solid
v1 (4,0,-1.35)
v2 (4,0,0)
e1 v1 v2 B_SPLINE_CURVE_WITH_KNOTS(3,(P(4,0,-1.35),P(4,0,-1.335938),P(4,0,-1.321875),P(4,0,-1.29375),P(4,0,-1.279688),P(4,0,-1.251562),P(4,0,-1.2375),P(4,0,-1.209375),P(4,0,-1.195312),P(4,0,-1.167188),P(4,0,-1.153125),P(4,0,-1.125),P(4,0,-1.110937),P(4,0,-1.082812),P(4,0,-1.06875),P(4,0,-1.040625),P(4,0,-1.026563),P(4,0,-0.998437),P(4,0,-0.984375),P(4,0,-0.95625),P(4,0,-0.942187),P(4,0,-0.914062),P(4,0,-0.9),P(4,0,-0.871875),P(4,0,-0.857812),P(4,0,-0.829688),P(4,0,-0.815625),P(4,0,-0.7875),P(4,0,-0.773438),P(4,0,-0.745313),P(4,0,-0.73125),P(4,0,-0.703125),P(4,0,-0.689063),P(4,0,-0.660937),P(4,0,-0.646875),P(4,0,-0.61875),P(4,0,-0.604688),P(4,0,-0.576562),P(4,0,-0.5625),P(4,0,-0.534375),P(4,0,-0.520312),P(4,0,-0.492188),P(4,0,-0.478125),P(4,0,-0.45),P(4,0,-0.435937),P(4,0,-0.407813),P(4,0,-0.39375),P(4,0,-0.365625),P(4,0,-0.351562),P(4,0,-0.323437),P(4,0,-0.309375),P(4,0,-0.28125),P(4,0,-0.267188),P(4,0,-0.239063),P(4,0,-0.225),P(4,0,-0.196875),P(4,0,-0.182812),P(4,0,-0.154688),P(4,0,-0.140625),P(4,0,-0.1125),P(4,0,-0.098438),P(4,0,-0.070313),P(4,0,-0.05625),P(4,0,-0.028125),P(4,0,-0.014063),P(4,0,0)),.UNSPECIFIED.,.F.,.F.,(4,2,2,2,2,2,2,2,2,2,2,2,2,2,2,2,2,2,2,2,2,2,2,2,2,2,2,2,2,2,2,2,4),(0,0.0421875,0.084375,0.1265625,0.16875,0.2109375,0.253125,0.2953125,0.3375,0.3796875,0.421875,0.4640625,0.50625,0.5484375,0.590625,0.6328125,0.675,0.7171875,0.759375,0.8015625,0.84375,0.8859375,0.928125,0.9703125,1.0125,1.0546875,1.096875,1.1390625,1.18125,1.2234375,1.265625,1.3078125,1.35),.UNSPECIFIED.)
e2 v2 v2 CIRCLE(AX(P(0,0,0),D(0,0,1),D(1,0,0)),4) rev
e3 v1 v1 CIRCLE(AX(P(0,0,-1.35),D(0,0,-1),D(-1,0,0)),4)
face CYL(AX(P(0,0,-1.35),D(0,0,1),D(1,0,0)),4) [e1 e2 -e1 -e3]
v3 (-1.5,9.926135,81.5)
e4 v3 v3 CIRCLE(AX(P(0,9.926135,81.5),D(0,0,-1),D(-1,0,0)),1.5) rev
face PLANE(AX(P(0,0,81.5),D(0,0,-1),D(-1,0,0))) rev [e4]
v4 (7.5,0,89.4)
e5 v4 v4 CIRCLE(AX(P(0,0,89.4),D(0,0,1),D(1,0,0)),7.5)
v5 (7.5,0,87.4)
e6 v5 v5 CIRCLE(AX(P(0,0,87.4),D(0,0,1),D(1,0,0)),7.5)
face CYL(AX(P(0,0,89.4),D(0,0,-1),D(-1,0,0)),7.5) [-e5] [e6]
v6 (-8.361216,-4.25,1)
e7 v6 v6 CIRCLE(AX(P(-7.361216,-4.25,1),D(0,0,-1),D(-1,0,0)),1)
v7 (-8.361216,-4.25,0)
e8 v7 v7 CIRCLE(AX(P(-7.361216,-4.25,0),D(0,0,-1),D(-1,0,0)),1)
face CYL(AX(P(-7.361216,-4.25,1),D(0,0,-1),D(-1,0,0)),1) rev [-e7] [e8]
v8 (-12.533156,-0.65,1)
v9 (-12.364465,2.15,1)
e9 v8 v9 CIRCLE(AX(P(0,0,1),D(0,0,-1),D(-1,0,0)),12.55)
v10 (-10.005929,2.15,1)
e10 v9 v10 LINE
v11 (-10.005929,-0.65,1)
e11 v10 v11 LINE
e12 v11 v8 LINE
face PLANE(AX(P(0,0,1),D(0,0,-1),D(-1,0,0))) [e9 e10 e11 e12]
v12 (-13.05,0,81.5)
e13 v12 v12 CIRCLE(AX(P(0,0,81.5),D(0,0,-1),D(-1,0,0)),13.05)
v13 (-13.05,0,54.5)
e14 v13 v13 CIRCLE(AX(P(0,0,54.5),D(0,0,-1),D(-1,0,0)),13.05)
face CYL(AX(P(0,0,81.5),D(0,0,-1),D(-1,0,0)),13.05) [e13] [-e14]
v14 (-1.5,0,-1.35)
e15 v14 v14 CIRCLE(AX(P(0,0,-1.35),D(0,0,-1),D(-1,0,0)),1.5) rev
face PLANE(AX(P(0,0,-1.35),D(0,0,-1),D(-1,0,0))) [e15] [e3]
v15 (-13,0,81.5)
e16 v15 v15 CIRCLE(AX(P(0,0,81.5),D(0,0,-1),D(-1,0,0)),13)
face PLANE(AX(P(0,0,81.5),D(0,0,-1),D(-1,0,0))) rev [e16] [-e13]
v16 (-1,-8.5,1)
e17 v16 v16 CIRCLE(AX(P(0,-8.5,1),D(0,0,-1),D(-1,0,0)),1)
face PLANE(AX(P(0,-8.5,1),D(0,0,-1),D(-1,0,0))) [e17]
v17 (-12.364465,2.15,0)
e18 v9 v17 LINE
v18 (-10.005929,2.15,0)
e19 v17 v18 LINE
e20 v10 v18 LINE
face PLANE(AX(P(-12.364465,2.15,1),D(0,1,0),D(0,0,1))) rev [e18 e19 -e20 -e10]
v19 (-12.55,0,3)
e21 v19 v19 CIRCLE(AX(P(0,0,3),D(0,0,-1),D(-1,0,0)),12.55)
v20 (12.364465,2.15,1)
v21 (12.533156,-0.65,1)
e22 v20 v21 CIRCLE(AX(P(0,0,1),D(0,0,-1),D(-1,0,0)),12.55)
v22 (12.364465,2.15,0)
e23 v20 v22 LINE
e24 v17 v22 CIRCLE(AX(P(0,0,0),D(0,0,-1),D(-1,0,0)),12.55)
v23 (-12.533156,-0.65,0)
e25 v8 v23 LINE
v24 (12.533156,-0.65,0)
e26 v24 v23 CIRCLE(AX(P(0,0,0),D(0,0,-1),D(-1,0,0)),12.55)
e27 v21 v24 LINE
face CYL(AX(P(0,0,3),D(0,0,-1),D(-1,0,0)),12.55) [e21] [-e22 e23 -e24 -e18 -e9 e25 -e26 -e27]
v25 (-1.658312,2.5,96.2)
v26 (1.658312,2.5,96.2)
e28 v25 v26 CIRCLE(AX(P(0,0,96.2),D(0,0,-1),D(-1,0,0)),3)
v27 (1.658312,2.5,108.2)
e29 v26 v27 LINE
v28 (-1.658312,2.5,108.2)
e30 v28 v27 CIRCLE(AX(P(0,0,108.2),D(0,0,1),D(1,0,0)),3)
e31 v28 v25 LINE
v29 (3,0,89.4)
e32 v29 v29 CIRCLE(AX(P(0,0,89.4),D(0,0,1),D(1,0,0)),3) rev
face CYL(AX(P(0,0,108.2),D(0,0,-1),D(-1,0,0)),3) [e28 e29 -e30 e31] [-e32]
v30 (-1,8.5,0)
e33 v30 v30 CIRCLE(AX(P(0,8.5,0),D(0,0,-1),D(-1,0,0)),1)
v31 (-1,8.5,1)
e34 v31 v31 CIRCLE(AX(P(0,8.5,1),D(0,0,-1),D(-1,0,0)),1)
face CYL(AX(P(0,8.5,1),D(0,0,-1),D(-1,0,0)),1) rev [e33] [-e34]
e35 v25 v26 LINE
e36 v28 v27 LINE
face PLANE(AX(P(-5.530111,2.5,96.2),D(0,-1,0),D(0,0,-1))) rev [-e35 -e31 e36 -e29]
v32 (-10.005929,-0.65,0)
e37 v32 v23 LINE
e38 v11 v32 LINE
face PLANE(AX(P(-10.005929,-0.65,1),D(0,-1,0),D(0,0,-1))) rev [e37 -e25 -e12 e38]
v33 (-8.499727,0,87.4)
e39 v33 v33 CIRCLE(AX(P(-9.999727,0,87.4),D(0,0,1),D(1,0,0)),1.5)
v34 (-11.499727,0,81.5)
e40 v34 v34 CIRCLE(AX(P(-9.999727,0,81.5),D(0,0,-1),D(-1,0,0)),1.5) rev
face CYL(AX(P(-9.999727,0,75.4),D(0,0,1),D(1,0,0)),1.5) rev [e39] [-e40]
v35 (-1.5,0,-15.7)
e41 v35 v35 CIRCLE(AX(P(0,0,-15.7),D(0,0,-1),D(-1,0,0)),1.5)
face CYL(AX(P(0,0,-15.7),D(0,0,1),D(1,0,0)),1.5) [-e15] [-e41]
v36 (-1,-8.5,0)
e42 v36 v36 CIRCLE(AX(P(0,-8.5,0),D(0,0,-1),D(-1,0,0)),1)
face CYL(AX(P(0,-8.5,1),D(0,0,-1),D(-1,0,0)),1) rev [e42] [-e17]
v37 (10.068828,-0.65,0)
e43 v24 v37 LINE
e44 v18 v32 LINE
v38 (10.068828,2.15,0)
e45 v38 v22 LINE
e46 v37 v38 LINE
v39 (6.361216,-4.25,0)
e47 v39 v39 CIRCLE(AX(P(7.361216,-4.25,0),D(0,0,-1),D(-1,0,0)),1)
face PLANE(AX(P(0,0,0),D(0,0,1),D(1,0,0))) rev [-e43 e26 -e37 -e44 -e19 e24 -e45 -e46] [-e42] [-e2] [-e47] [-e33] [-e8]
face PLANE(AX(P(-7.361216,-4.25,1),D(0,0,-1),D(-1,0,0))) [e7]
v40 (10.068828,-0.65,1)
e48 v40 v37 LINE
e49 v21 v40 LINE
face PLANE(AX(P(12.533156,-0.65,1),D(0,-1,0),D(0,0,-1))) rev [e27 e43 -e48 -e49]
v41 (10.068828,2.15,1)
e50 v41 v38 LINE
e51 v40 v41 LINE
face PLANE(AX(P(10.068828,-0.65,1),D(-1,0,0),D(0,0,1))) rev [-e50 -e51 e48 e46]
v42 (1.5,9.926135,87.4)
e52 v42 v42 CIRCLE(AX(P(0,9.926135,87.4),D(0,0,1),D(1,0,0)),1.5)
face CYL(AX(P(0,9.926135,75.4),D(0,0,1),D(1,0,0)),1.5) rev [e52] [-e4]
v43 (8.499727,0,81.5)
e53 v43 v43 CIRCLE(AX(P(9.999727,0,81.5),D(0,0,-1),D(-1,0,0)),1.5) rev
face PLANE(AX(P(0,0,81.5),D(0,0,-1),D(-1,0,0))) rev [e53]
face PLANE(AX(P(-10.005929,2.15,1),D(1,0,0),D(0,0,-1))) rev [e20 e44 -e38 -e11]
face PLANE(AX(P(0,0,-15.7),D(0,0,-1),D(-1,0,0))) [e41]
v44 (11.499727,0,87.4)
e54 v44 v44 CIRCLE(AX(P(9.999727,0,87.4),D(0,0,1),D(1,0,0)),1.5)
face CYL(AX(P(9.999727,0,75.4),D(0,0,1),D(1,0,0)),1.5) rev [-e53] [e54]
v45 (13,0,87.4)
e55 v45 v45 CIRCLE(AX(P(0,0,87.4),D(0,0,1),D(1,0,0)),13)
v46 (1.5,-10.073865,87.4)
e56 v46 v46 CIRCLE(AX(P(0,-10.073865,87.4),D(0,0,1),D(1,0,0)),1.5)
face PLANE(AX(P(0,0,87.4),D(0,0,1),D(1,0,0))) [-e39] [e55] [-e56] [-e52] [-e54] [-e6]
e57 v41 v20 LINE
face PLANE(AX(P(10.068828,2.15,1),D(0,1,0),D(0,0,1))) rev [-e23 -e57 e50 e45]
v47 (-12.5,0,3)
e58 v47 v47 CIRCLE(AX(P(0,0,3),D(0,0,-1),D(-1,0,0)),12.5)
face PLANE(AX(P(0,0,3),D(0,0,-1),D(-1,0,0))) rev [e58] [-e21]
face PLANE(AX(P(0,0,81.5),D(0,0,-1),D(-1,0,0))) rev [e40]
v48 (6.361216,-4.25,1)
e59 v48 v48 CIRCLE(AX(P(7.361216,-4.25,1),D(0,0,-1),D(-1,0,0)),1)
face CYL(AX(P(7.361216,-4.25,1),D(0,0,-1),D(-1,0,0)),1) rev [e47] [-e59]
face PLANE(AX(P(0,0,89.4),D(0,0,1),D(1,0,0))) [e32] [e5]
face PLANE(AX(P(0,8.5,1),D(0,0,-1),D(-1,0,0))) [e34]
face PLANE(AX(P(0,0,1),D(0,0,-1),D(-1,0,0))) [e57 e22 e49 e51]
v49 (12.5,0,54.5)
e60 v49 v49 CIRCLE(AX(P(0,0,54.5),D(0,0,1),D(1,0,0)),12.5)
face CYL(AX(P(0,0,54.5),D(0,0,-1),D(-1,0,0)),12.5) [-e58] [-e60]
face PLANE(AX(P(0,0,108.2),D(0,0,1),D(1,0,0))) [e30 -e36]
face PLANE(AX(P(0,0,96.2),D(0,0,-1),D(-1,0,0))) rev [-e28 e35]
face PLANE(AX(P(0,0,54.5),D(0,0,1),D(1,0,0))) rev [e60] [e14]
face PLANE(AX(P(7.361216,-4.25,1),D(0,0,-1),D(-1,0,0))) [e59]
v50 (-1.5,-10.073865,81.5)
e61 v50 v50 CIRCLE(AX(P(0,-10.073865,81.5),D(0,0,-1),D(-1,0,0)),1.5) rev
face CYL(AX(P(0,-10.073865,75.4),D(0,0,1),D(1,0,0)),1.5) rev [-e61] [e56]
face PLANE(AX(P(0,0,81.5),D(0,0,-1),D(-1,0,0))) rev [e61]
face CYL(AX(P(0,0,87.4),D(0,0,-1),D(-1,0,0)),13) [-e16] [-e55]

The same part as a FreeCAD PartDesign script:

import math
import FreeCAD as App
import Part
import Sketcher
Q = App.Units.Quantity

doc = App.newDocument("Part")
params = doc.addObject("Spreadsheet::Sheet", "Params")
for row, (alias, value) in enumerate([
    ("sketch1_diameter", "25 mm"),
    ("pad1_length", "54.5 mm"),
    ("sketch2_diameter", "8 mm"),
    ("pad2_length", "1.35 mm"),
    ("sketch3_diameter", "3 mm"),
    ("pad3_length", "15.7 mm"),
    ("sketch4_diameter", "26 mm"),
    ("pad4_length", "32.9 mm"),
    ("sketch5_diameter", "15 mm"),
    ("pad5_length", "2 mm"),
    ("sketch6_diameter", "6 mm"),
    ("pad6_length", "20.8 mm"),
    ("pocket1_length", "12 mm"),
    ("sketch8_diameter", "3 mm"),
    ("pocket2_length", "12 mm"),
    ("sketch9_diameter", "26.1 mm"),
    ("pad7_length", "27 mm"),
    ("sketch10_diameter", "25.1 mm"),
    ("pad8_length", "3 mm"),
    ("sketch11_diameter", "2 mm"),
    ("sketch11_radius", "12.55 mm"),
    ("sketch11_height", "2.8 mm"),
    ("pocket3_length", "1 mm"),
], start=1):
    params.set(f"A{row}", alias)
    params.set(f"B{row}", "=" + value)
    params.setAlias(f"B{row}", alias)

body = doc.addObject("PartDesign::Body", "Body")

# Sketch on XY plane
sketch1 = body.newObject("Sketcher::SketchObject", "Sketch")
sketch1.AttachmentSupport = (doc.getObject("XY_Plane"), [""])
sketch1.MapMode = "FlatFace"
sketch1.addGeometry(Part.Circle(App.Vector(0, 0, 0), App.Vector(0, 0, 1), 12), False)
sketch1.addConstraint([
    Sketcher.Constraint("Coincident", 0, 3, -1, 1),
    Sketcher.Constraint("Diameter", 0, Q("25 mm")),
])
sketch1.setExpression("Constraints[1]", "Params.sketch1_diameter")
pad1 = body.newObject("PartDesign::Pad", "Pad")
pad1.Profile = sketch1
pad1.setExpression("Length", "Params.pad1_length")

# Sketch on XY plane
sketch2 = body.newObject("Sketcher::SketchObject", "Sketch001")
sketch2.AttachmentSupport = (doc.getObject("XY_Plane"), [""])
sketch2.MapMode = "FlatFace"
sketch2.addGeometry(Part.Circle(App.Vector(0, 0, 0), App.Vector(0, 0, 1), 4), False)
sketch2.addConstraint([
    Sketcher.Constraint("Coincident", 0, 3, -1, 1),
    Sketcher.Constraint("Diameter", 0, Q("8 mm")),
])
sketch2.setExpression("Constraints[1]", "Params.sketch2_diameter")
pad2 = body.newObject("PartDesign::Pad", "Pad001")
pad2.Profile = sketch2
pad2.setExpression("Length", "Params.pad2_length")
pad2.Reversed = True

# Sketch on XY plane
sketch3 = body.newObject("Sketcher::SketchObject", "Sketch002")
sketch3.AttachmentSupport = (doc.getObject("XY_Plane"), [""])
sketch3.MapMode = "FlatFace"
sketch3.addGeometry(Part.Circle(App.Vector(0, 0, 0), App.Vector(0, 0, 1), 1.5), False)
sketch3.addConstraint([
    Sketcher.Constraint("Coincident", 0, 3, -1, 1),
    Sketcher.Constraint("Diameter", 0, Q("3 mm")),
])
sketch3.setExpression("Constraints[1]", "Params.sketch3_diameter")
pad3 = body.newObject("PartDesign::Pad", "Pad002")
pad3.Profile = sketch3
pad3.setExpression("Length", "Params.pad3_length")
pad3.Reversed = True

# Sketch on XY plane
sketch4 = body.newObject("Sketcher::SketchObject", "Sketch003")
sketch4.AttachmentSupport = (doc.getObject("XY_Plane"), [""])
sketch4.MapMode = "FlatFace"
sketch4.AttachmentOffset = App.Placement(App.Vector(0, 0, 54.5), App.Rotation())
sketch4.addGeometry(Part.Circle(App.Vector(0, 0, 0), App.Vector(0, 0, 1), 13), False)
sketch4.addConstraint([
    Sketcher.Constraint("Coincident", 0, 3, -1, 1),
    Sketcher.Constraint("Diameter", 0, Q("26 mm")),
])
sketch4.setExpression("Constraints[1]", "Params.sketch4_diameter")
pad4 = body.newObject("PartDesign::Pad", "Pad003")
pad4.Profile = sketch4
pad4.setExpression("Length", "Params.pad4_length")

# Sketch on XY plane
sketch5 = body.newObject("Sketcher::SketchObject", "Sketch004")
sketch5.AttachmentSupport = (doc.getObject("XY_Plane"), [""])
sketch5.MapMode = "FlatFace"
sketch5.AttachmentOffset = App.Placement(App.Vector(0, 0, 87.4), App.Rotation())
sketch5.addGeometry(Part.Circle(App.Vector(0, 0, 0), App.Vector(0, 0, 1), 8), False)
sketch5.addConstraint([
    Sketcher.Constraint("Coincident", 0, 3, -1, 1),
    Sketcher.Constraint("Diameter", 0, Q("15 mm")),
])
sketch5.setExpression("Constraints[1]", "Params.sketch5_diameter")
pad5 = body.newObject("PartDesign::Pad", "Pad004")
pad5.Profile = sketch5
pad5.setExpression("Length", "Params.pad5_length")

# Sketch on XY plane
sketch6 = body.newObject("Sketcher::SketchObject", "Sketch005")
sketch6.AttachmentSupport = (doc.getObject("XY_Plane"), [""])
sketch6.MapMode = "FlatFace"
sketch6.AttachmentOffset = App.Placement(App.Vector(0, 0, 87.4), App.Rotation())
sketch6.addGeometry(Part.Circle(App.Vector(0, 0, 0), App.Vector(0, 0, 1), 3), False)
sketch6.addConstraint([
    Sketcher.Constraint("Coincident", 0, 3, -1, 1),
    Sketcher.Constraint("Diameter", 0, Q("6 mm")),
])
sketch6.setExpression("Constraints[1]", "Params.sketch6_diameter")
pad6 = body.newObject("PartDesign::Pad", "Pad005")
pad6.Profile = sketch6
pad6.setExpression("Length", "Params.pad6_length")

# Sketch on XY plane
sketch7 = body.newObject("Sketcher::SketchObject", "Sketch006")
sketch7.AttachmentSupport = (doc.getObject("XY_Plane"), [""])
sketch7.MapMode = "FlatFace"
sketch7.AttachmentOffset = App.Placement(App.Vector(0, 0, 108.2), App.Rotation())
sketch7.addGeometry([
    Part.LineSegment(App.Vector(-6, 15, 0), App.Vector(-6, 2, 0)),
    Part.LineSegment(App.Vector(-6, 2, 0), App.Vector(4, 2, 0)),
    Part.LineSegment(App.Vector(4, 2, 0), App.Vector(4, 15, 0)),
    Part.LineSegment(App.Vector(4, 15, 0), App.Vector(-6, 15, 0)),
], False)
sketch7.addConstraint([
    Sketcher.Constraint("Coincident", 0, 2, 1, 1),
    Sketcher.Constraint("Coincident", 1, 2, 2, 1),
    Sketcher.Constraint("Coincident", 2, 2, 3, 1),
    Sketcher.Constraint("Coincident", 3, 2, 0, 1),
    Sketcher.Constraint("Vertical", 0),
    Sketcher.Constraint("Horizontal", 1),
    Sketcher.Constraint("Vertical", 2),
    Sketcher.Constraint("Horizontal", 3),
    Sketcher.Constraint("DistanceY", -1, 1, 0, 2, Q("2.5 mm")),
    Sketcher.Constraint("DistanceX", 1, 1, 1, 2, Q("9.608231 mm")),
    Sketcher.Constraint("DistanceY", 0, 2, 0, 1, Q("12.440368 mm")),
    Sketcher.Constraint("DistanceX", 0, 2, -1, 1, Q("5.530111 mm")),
])
pocket1 = body.newObject("PartDesign::Pocket", "Pocket")
pocket1.Profile = sketch7
pocket1.setExpression("Length", "Params.pocket1_length")

# Sketch on XY plane
sketch8 = body.newObject("Sketcher::SketchObject", "Sketch007")
sketch8.AttachmentSupport = (doc.getObject("XY_Plane"), [""])
sketch8.MapMode = "FlatFace"
sketch8.AttachmentOffset = App.Placement(App.Vector(0, 0, 87.4), App.Rotation())
sketch8.addGeometry([
    Part.Circle(App.Vector(-10, 0, 0), App.Vector(0, 0, 1), 1.5),
    Part.Circle(App.Vector(10, 0, 0), App.Vector(0, 0, 1), 1.5),
    Part.Circle(App.Vector(0, -10.1, 0), App.Vector(0, 0, 1), 1.5),
    Part.Circle(App.Vector(0, 9.9, 0), App.Vector(0, 0, 1), 1.5),
], False)
sketch8.addConstraint([
    Sketcher.Constraint("Equal", 0, 1),
    Sketcher.Constraint("Equal", 1, 2),
    Sketcher.Constraint("Equal", 2, 3),
    Sketcher.Constraint("Symmetric", 0, 3, 1, 3, -1, 1),
    Sketcher.Constraint("PointOnObject", 0, 3, -1),
    Sketcher.Constraint("PointOnObject", 2, 3, -2),
    Sketcher.Constraint("PointOnObject", 3, 3, -2),
    Sketcher.Constraint("Diameter", 0, Q("3 mm")),
    Sketcher.Constraint("DistanceY", 2, 3, 3, 3, Q("20 mm")),
    Sketcher.Constraint("DistanceX", 0, 3, -1, 1, Q("9.999727 mm")),
    Sketcher.Constraint("DistanceY", 2, 3, -1, 1, Q("10.073865 mm")),
])
sketch8.setExpression("Constraints[7]", "Params.sketch8_diameter")
pocket2 = body.newObject("PartDesign::Pocket", "Pocket001")
pocket2.Profile = sketch8
pocket2.setExpression("Length", "Params.pocket2_length")

# Sketch on XY plane
sketch9 = body.newObject("Sketcher::SketchObject", "Sketch008")
sketch9.AttachmentSupport = (doc.getObject("XY_Plane"), [""])
sketch9.MapMode = "FlatFace"
sketch9.AttachmentOffset = App.Placement(App.Vector(0, 0, 54.5), App.Rotation())
sketch9.addGeometry(Part.Circle(App.Vector(0, 0, 0), App.Vector(0, 0, 1), 13), False)
sketch9.addConstraint([
    Sketcher.Constraint("Coincident", 0, 3, -1, 1),
    Sketcher.Constraint("Diameter", 0, Q("26.1 mm")),
])
sketch9.setExpression("Constraints[1]", "Params.sketch9_diameter")
pad7 = body.newObject("PartDesign::Pad", "Pad006")
pad7.Profile = sketch9
pad7.setExpression("Length", "Params.pad7_length")

# Sketch on XY plane
sketch10 = body.newObject("Sketcher::SketchObject", "Sketch009")
sketch10.AttachmentSupport = (doc.getObject("XY_Plane"), [""])
sketch10.MapMode = "FlatFace"
sketch10.addGeometry(Part.Circle(App.Vector(0, 0, 0), App.Vector(0, 0, 1), 13), False)
sketch10.addConstraint([
    Sketcher.Constraint("Coincident", 0, 3, -1, 1),
    Sketcher.Constraint("Diameter", 0, Q("25.1 mm")),
])
sketch10.setExpression("Constraints[1]", "Params.sketch10_diameter")
pad8 = body.newObject("PartDesign::Pad", "Pad007")
pad8.Profile = sketch10
pad8.setExpression("Length", "Params.pad8_length")

# Sketch on XY plane
sketch11 = body.newObject("Sketcher::SketchObject", "Sketch010")
sketch11.AttachmentSupport = (doc.getObject("XY_Plane"), [""])
sketch11.MapMode = "FlatFace"
sketch11.addGeometry([
    Part.Circle(App.Vector(0, 8.5, 0), App.Vector(0, 0, 1), 1),  # 0
    Part.Circle(App.Vector(-7.4, -4.2, 0), App.Vector(0, 0, 1), 1),  # 1
    Part.Circle(App.Vector(0, -8.5, 0), App.Vector(0, 0, 1), 1),  # 2
    Part.Circle(App.Vector(7.4, -4.2, 0), App.Vector(0, 0, 1), 1),  # 3
    Part.LineSegment(App.Vector(-12.4, 2.1, 0), App.Vector(-10, 2.1, 0)),  # 4
    Part.LineSegment(App.Vector(-10, 2.1, 0), App.Vector(-10, -0.7, 0)),  # 5
    Part.LineSegment(App.Vector(-10, -0.7, 0), App.Vector(-12.5, -0.7, 0)),  # 6
    Part.ArcOfCircle(Part.Circle(App.Vector(0, 0, 0), App.Vector(0, 0, 1), 12.5), math.radians(170.14), math.radians(182.97)),  # 7
    Part.LineSegment(App.Vector(12.5, -0.7, 0), App.Vector(10.1, -0.7, 0)),  # 8
    Part.LineSegment(App.Vector(10.1, -0.7, 0), App.Vector(10.1, 2.1, 0)),  # 9
    Part.LineSegment(App.Vector(10.1, 2.1, 0), App.Vector(12.4, 2.1, 0)),  # 10
    Part.ArcOfCircle(Part.Circle(App.Vector(0, 0, 0), App.Vector(0, 0, 1), 12.5), math.radians(-2.97), math.radians(9.86)),  # 11
], False)
sketch11.addConstraint([
    Sketcher.Constraint("Coincident", 4, 2, 5, 1),
    Sketcher.Constraint("Coincident", 5, 2, 6, 1),
    Sketcher.Constraint("Coincident", 6, 2, 7, 2),
    Sketcher.Constraint("Coincident", 7, 1, 4, 1),
    Sketcher.Constraint("Coincident", 8, 2, 9, 1),
    Sketcher.Constraint("Coincident", 9, 2, 10, 1),
    Sketcher.Constraint("Coincident", 10, 2, 11, 2),
    Sketcher.Constraint("Coincident", 11, 1, 8, 1),
    Sketcher.Constraint("Horizontal", 4),
    Sketcher.Constraint("Vertical", 5),
    Sketcher.Constraint("Horizontal", 6),
    Sketcher.Constraint("Horizontal", 8),
    Sketcher.Constraint("Vertical", 9),
    Sketcher.Constraint("Horizontal", 10),
    Sketcher.Constraint("Coincident", 7, 3, -1, 1),
    Sketcher.Constraint("Coincident", 11, 3, -1, 1),
    Sketcher.Constraint("Equal", 0, 1),
    Sketcher.Constraint("Equal", 1, 2),
    Sketcher.Constraint("Equal", 2, 3),
    Sketcher.Constraint("Equal", 7, 11),
    Sketcher.Constraint("Symmetric", 0, 3, 2, 3, -1, 1),
    Sketcher.Constraint("Symmetric", 1, 3, 3, 3, -2),
    Sketcher.Constraint("PointOnObject", 0, 3, -2),
    Sketcher.Constraint("Horizontal", 6, 2, 8, 2),
    Sketcher.Constraint("Horizontal", 7, 1, 9, 2),
    Sketcher.Constraint("Diameter", 0, Q("2 mm")),
    Sketcher.Constraint("Radius", 7, Q("12.55 mm")),
    Sketcher.Constraint("DistanceY", 5, 2, 5, 1, Q("2.8 mm")),
    Sketcher.Constraint("DistanceY", 2, 3, 0, 3, Q("17 mm")),
    Sketcher.Constraint("DistanceY", 1, 3, 4, 2, Q("6.4 mm")),
    Sketcher.Constraint("DistanceY", 1, 3, -1, 1, Q("4.25 mm")),
    Sketcher.Constraint("DistanceX", 4, 1, 4, 2, Q("2.358536 mm")),
    Sketcher.Constraint("DistanceX", 8, 2, 8, 1, Q("2.464328 mm")),
    Sketcher.Constraint("DistanceX", 1, 3, 3, 3, Q("14.722432 mm")),
])
sketch11.setExpression("Constraints[25]", "Params.sketch11_diameter")
sketch11.setExpression("Constraints[26]", "Params.sketch11_radius")
sketch11.setExpression("Constraints[27]", "Params.sketch11_height")
pocket3 = body.newObject("PartDesign::Pocket", "Pocket002")
pocket3.Profile = sketch11
pocket3.setExpression("Length", "Params.pocket3_length")
pocket3.Reversed = True

doc.recompute()
